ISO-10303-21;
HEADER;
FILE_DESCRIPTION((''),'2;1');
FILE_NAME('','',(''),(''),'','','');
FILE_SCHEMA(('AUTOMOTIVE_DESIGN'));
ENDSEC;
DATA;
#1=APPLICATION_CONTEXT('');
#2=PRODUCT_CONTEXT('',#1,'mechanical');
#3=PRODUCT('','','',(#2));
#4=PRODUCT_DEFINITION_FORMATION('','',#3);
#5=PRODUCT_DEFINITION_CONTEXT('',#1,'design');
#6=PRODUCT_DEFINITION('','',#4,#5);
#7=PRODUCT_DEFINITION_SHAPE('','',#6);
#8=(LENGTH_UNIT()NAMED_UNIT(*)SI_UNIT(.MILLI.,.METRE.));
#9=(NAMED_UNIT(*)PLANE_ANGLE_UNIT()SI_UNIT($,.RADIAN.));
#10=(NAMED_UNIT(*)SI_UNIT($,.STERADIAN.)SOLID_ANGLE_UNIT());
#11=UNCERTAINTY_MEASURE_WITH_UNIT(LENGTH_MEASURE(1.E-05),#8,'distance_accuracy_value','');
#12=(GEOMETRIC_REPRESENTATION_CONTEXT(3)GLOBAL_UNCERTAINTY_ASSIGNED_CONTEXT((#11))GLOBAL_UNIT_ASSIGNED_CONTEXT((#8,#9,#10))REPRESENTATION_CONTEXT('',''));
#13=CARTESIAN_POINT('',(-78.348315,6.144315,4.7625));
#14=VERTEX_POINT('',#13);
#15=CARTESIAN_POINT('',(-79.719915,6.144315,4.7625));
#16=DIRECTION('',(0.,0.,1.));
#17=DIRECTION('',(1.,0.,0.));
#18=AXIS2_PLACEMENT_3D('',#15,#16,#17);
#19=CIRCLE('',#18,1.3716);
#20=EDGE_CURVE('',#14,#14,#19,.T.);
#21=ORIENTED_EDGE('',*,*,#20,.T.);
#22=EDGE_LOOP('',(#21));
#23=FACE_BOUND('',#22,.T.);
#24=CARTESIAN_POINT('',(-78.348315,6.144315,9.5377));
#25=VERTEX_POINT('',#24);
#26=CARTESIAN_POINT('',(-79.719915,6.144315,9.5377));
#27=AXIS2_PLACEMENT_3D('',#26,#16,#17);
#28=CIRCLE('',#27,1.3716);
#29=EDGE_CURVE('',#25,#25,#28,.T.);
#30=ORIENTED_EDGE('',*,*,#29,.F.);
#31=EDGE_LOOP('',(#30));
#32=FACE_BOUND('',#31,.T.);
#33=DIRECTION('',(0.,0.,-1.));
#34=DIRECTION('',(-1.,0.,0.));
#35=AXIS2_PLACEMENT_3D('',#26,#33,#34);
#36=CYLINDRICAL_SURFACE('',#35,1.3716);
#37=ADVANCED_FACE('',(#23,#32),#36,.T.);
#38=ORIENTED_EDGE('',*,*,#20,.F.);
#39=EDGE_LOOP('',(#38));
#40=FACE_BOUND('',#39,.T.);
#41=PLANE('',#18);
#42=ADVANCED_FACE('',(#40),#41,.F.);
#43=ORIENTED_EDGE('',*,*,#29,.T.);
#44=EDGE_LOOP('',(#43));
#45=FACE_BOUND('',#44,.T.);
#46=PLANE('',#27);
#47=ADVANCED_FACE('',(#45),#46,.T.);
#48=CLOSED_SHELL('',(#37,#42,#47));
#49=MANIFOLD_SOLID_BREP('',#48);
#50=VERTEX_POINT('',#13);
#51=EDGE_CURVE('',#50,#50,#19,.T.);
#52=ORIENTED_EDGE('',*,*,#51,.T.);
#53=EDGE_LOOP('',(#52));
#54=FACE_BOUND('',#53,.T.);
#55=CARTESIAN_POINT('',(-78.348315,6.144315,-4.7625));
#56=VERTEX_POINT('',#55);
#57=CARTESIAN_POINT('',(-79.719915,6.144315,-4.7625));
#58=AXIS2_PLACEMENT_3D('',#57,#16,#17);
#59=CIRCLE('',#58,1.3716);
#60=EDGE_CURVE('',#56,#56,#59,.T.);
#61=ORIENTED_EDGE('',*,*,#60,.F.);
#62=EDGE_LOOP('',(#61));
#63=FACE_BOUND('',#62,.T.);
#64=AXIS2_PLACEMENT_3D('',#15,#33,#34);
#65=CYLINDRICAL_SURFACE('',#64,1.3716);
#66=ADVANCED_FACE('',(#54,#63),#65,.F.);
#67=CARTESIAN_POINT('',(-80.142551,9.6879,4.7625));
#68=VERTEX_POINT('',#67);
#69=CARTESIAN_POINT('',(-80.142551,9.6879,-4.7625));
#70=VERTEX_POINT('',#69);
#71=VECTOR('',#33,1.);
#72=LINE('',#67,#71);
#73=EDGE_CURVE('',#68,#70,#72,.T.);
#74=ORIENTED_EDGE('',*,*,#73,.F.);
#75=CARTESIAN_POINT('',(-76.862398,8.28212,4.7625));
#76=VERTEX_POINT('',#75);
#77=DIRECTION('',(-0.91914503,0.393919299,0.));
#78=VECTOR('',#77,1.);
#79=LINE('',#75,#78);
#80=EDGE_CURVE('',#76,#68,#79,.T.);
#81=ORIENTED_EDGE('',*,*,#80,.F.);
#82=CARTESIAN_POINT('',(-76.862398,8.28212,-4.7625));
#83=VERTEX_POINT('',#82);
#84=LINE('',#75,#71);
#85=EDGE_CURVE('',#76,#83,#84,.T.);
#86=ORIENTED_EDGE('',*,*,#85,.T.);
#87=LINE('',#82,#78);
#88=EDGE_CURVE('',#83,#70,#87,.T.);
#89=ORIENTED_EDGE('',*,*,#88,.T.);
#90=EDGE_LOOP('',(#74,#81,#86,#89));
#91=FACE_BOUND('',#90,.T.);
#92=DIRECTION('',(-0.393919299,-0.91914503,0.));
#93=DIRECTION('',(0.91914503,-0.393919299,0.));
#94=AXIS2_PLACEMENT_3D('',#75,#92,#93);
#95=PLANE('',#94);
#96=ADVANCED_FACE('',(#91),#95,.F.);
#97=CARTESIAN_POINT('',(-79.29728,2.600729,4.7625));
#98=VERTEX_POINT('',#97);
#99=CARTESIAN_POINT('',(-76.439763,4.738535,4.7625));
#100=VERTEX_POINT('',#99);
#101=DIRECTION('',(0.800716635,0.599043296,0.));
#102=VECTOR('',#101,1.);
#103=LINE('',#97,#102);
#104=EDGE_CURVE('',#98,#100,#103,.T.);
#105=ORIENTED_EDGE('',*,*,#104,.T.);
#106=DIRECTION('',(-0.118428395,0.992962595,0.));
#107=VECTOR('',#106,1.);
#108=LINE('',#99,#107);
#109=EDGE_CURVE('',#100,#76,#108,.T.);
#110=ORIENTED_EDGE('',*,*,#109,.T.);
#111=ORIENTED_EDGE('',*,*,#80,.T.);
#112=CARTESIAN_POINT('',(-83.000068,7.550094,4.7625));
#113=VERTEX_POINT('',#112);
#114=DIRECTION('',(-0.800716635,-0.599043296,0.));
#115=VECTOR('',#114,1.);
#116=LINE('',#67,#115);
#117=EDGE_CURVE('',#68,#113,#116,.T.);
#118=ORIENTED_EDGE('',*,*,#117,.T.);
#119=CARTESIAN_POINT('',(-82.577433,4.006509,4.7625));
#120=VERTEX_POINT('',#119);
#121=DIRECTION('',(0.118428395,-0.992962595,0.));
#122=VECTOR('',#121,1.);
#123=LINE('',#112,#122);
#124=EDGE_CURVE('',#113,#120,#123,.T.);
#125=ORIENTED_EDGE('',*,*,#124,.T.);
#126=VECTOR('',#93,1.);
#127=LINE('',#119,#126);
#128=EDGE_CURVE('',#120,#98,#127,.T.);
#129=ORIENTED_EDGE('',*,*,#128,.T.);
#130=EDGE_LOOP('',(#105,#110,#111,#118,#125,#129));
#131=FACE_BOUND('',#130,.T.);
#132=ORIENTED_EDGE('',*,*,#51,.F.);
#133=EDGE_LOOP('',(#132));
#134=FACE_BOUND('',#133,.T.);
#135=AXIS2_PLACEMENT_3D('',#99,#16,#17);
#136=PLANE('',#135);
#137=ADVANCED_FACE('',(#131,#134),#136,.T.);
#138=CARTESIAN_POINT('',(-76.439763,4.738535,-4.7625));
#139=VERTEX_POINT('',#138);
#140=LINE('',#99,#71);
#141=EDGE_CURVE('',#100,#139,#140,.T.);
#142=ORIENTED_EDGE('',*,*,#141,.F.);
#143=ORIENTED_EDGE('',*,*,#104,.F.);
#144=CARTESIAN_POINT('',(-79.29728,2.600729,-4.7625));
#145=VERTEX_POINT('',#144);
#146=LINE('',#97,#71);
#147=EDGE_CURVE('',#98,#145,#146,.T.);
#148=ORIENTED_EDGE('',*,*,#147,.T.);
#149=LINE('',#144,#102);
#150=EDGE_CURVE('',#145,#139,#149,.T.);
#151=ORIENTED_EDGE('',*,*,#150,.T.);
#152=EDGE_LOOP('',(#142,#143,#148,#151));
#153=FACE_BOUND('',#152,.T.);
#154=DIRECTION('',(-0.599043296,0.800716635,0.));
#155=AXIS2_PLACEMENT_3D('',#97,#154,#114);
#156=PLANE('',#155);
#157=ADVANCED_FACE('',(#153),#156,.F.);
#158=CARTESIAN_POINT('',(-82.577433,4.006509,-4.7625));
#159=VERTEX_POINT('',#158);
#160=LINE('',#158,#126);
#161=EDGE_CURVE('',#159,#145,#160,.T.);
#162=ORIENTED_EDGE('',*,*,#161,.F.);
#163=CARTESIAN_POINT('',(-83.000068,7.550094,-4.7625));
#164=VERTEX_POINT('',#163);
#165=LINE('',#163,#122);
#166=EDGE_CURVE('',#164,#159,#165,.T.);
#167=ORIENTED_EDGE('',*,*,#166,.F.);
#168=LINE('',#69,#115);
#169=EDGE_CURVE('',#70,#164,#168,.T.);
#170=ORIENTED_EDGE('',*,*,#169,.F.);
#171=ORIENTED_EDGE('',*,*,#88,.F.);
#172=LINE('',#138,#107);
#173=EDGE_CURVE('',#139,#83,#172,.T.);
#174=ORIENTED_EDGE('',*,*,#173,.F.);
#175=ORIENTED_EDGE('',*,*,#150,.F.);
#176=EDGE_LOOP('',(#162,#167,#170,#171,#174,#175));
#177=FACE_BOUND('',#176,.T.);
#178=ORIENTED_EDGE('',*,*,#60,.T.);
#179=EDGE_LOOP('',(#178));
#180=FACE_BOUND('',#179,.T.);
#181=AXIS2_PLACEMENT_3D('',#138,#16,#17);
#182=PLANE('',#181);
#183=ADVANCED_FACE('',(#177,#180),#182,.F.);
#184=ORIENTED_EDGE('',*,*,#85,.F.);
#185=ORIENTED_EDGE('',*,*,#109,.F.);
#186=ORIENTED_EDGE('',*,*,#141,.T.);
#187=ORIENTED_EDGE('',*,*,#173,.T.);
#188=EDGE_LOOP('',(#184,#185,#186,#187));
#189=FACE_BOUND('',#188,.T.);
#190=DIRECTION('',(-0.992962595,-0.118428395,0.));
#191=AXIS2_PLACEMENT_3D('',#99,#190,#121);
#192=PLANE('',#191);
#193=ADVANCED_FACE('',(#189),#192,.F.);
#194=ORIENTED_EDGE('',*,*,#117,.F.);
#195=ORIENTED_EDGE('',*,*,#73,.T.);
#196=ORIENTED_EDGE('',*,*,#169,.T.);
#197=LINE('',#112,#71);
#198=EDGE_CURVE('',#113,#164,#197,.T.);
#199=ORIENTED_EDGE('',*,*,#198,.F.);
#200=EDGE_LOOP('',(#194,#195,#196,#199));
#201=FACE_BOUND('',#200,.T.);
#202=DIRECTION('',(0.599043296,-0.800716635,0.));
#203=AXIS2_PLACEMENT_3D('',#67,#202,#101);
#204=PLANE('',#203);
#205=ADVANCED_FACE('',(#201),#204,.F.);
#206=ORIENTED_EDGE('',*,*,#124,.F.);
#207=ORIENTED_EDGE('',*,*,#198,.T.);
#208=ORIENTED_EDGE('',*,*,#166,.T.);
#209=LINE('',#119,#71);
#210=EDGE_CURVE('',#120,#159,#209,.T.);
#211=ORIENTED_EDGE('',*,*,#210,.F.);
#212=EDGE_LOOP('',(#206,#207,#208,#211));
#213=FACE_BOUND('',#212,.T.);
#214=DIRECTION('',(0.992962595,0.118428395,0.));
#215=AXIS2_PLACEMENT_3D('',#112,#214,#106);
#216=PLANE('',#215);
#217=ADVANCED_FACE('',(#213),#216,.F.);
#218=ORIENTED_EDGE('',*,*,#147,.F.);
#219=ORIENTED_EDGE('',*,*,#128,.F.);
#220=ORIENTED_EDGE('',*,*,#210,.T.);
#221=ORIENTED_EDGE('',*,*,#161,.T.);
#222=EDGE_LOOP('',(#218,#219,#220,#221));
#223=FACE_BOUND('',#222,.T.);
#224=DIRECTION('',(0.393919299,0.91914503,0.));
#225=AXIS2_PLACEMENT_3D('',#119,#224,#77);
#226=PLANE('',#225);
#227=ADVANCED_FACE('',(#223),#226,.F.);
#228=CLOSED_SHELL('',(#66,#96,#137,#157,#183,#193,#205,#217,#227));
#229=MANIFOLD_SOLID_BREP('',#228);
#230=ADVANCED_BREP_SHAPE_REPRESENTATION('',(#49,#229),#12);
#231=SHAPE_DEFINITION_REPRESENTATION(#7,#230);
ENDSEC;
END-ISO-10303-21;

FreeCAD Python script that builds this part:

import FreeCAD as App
import Part
import Sketcher

V = App.Vector
Q = App.Units.Quantity

doc = App.newDocument("Part")
body = doc.addObject("PartDesign::Body", "Body")

# Sketch on XY plane
sketch1 = body.newObject("Sketcher::SketchObject", "Sketch")
sketch1.AttachmentSupport = (doc.getObject("XY_Plane"), [""])
sketch1.MapMode = "FlatFace"
sketch1.addGeometry([
    Part.LineSegment(V(-76.439763, 4.738535, 0), V(-76.862398, 8.28212, 0)),  # 0
    Part.LineSegment(V(-76.862398, 8.28212, 0), V(-80.142551, 9.6879, 0)),  # 1
    Part.LineSegment(V(-80.142551, 9.6879, 0), V(-83.000068, 7.550094, 0)),  # 2
    Part.LineSegment(V(-83.000068, 7.550094, 0), V(-82.577433, 4.006509, 0)),  # 3
    Part.LineSegment(V(-82.577433, 4.006509, 0), V(-79.29728, 2.600729, 0)),  # 4
    Part.LineSegment(V(-79.29728, 2.600729, 0), V(-76.439763, 4.738535, 0)),  # 5
    Part.Circle(V(-79.719915, 6.144315, 0), V(0, 0, 1), 1.3716),  # 6
], False)
sketch1.addConstraint([
    Sketcher.Constraint("Coincident", 0, 2, 1, 1),
    Sketcher.Constraint("Coincident", 1, 2, 2, 1),
    Sketcher.Constraint("Coincident", 2, 2, 3, 1),
    Sketcher.Constraint("Coincident", 3, 2, 4, 1),
    Sketcher.Constraint("Coincident", 4, 2, 5, 1),
    Sketcher.Constraint("Coincident", 5, 2, 0, 1),
    Sketcher.Constraint("Parallel", 0, 3),
    Sketcher.Constraint("Parallel", 1, 4),
    Sketcher.Constraint("Parallel", 2, 5),
    Sketcher.Constraint("Equal", 0, 1),
    Sketcher.Constraint("Equal", 1, 2),
    Sketcher.Constraint("Equal", 2, 3),
    Sketcher.Constraint("Diameter", 6, Q("0.108 in")),
    Sketcher.Constraint("Distance", 0, Q("0.1405 in")),
    Sketcher.Constraint("DistanceX", 0, 2, -1, 1, Q("76.862398 mm")),
    Sketcher.Constraint("DistanceY", -1, 1, 1, 2, Q("9.6879 mm")),
    Sketcher.Constraint("DistanceY", -1, 1, 0, 2, Q("8.28212 mm")),
    Sketcher.Constraint("DistanceX", 2, 2, -1, 1, Q("83.000068 mm")),
    Sketcher.Constraint("DistanceY", -1, 1, 3, 2, Q("4.006509 mm")),
    Sketcher.Constraint("DistanceY", 6, 3, 2, 2, Q("1.40578 mm")),
    Sketcher.Constraint("DistanceX", 6, 3, -1, 1, Q("79.719915 mm")),
])
pad1 = body.newObject("PartDesign::Pad", "Pad")
pad1.Profile = sketch1
pad1.Length = Q("0.375 in")
pad1.Midplane = True
body2 = doc.addObject("PartDesign::Body", "Body001")

# Sketch on XY plane
sketch2 = body2.newObject("Sketcher::SketchObject", "Sketch001")
sketch2.AttachmentSupport = (doc.getObject("XY_Plane001"), [""])
sketch2.MapMode = "FlatFace"
sketch2.AttachmentOffset = App.Placement(V(0, 0, 0.1875 * 25.4), App.Rotation())
sketch2.addGeometry(Part.Circle(V(-79.719915, 6.144315, 0), V(0, 0, 1), 1.3716), False)
sketch2.addConstraint([
    Sketcher.Constraint("Diameter", 0, Q("0.108 in")),
    Sketcher.Constraint("DistanceX", 0, 3, -1, 1, Q("79.719915 mm")),
    Sketcher.Constraint("DistanceY", -1, 1, 0, 3, Q("6.144315 mm")),
])
pad2 = body2.newObject("PartDesign::Pad", "Pad001")
pad2.Profile = sketch2
pad2.Length = Q("0.188 in")

doc.recompute()
